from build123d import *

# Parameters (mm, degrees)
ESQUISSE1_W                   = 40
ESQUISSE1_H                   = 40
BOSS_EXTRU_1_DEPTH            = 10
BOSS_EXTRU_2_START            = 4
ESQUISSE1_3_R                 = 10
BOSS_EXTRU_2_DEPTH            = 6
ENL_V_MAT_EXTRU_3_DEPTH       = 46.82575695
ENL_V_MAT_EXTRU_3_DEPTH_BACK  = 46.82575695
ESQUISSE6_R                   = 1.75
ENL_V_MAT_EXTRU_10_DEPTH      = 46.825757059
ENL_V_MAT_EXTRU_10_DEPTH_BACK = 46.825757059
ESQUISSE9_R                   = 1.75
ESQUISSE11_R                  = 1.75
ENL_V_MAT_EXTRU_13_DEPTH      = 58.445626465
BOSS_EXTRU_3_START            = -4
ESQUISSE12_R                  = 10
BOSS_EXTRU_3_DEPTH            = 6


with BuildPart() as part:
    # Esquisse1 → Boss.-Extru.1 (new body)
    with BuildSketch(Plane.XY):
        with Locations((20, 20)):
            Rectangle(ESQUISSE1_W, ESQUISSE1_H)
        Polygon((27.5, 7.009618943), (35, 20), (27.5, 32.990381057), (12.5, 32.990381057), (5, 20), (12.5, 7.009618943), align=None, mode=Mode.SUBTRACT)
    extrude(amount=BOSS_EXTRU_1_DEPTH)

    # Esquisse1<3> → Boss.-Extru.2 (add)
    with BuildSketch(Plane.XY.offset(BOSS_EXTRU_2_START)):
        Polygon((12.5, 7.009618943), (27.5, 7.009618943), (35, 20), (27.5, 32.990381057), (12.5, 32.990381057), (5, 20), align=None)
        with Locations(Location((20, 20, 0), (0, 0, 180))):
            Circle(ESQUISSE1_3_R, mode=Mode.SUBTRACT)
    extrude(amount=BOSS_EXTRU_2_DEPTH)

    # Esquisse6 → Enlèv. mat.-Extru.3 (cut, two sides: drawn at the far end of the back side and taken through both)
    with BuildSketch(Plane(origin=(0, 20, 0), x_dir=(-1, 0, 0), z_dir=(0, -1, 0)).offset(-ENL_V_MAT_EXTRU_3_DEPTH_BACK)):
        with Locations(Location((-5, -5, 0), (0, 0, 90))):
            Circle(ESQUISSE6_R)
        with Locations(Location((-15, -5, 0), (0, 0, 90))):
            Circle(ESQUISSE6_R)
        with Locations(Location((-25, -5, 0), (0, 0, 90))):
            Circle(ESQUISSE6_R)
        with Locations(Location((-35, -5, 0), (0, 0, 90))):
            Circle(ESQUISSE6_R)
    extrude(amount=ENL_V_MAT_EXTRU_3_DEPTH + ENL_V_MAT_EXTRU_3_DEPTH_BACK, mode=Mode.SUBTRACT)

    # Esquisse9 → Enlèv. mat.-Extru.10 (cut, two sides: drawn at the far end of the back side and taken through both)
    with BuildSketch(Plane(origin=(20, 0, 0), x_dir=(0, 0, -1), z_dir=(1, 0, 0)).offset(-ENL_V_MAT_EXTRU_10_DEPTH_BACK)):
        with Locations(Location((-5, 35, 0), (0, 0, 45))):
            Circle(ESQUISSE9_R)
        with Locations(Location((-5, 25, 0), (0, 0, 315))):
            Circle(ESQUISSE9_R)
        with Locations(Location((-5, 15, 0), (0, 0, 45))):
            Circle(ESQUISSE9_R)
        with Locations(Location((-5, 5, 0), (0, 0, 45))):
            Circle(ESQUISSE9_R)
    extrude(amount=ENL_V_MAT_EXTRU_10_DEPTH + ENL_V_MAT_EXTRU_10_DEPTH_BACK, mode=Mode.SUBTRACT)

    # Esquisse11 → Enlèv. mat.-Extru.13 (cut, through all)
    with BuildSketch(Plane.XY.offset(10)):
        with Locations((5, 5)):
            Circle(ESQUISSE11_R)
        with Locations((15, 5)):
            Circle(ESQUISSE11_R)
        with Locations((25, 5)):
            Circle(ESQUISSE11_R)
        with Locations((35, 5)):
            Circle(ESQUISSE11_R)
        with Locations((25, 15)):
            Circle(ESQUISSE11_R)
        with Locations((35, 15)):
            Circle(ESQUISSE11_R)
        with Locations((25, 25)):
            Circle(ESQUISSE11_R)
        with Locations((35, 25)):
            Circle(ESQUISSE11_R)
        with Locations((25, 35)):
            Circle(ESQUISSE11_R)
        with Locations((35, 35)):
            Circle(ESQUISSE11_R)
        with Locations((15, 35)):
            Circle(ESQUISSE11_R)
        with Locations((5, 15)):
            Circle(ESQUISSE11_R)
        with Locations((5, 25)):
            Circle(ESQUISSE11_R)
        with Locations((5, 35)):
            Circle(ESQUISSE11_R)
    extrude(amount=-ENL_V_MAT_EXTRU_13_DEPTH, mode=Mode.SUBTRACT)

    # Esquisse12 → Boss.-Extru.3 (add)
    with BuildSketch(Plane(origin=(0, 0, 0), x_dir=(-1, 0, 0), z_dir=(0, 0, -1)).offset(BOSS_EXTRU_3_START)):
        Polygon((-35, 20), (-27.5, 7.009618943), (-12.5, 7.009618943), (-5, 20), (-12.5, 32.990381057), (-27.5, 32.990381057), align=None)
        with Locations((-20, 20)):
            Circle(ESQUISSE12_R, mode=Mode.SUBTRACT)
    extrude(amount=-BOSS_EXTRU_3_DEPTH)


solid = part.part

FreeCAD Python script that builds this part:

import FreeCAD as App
import Part
import Sketcher
Q = App.Units.Quantity


def add_polygon(sketch, points):
    """Adds a closed chain of lines whose ends are joined by coincident constraints."""
    first, n = sketch.GeometryCount, len(points)
    for a, b in zip(points, points[1:] + points[:1]):
        sketch.addGeometry(Part.LineSegment(App.Vector(*a, 0), App.Vector(*b, 0)), False)
    for i in range(n):
        sketch.addConstraint(Sketcher.Constraint("Coincident", first + i, 2, first + (i + 1) % n, 1))

doc = App.newDocument("Part")
body = doc.addObject("PartDesign::Body", "Body")

# Sketch on XY plane
sketch1 = body.newObject("Sketcher::SketchObject", "Sketch")
sketch1.AttachmentSupport = (doc.getObject("XY_Plane"), [""])
sketch1.MapMode = "FlatFace"
add_polygon(sketch1, [(0, 40), (0, 0), (40, 0), (40, 40)])  # lines 0-3
add_polygon(sketch1, [(35, 20), (28, 7), (12, 7), (5, 20), (12, 33), (28, 33)])  # lines 4-9
sketch1.addConstraint([
    Sketcher.Constraint("Vertical", 0),
    Sketcher.Constraint("Horizontal", 1),
    Sketcher.Constraint("Vertical", 2),
    Sketcher.Constraint("Horizontal", 3),
    Sketcher.Constraint("Horizontal", 5),
    Sketcher.Constraint("Horizontal", 8),
    Sketcher.Constraint("Coincident", 0, 2, -1, 1),
    Sketcher.Constraint("Parallel", 4, 7),
    Sketcher.Constraint("Parallel", 6, 9),
    Sketcher.Constraint("Horizontal", 6, 2, 9, 2),
    Sketcher.Constraint("Vertical", 5, 2, 7, 2),
    Sketcher.Constraint("Vertical", 4, 2, 8, 2),
    Sketcher.Constraint("Equal", 3, 0),
    Sketcher.Constraint("DistanceX", 1, 1, 1, 2, 40.0),
    Sketcher.Constraint("DistanceX", 5, 2, 5, 1, 15.0),
    Sketcher.Constraint("Angle", 4, Q("-120 deg")),
    Sketcher.Constraint("Distance", 4, 15.0),
    Sketcher.Constraint("DistanceX", -1, 1, 6, 2, 5.0),
    Sketcher.Constraint("DistanceY", -1, 1, 6, 2, 20.0),
])
pad1 = body.newObject("PartDesign::Pad", "Pad")
pad1.Profile = sketch1
pad1.Length = 10

# Sketch on XY plane
sketch2 = body.newObject("Sketcher::SketchObject", "Sketch001")
sketch2.AttachmentSupport = (doc.getObject("XY_Plane"), [""])
sketch2.MapMode = "FlatFace"
sketch2.AttachmentOffset = App.Placement(App.Vector(0, 0, 4), App.Rotation())
add_polygon(sketch2, [(12, 7), (28, 7), (35, 20), (28, 33), (12, 33), (5, 20)])  # lines 0-5
sketch2.addGeometry(Part.Circle(App.Vector(20, 20, 0), App.Vector(0, 0, 1), 10), False)  # 6
sketch2.addConstraint([
    Sketcher.Constraint("Horizontal", 0),
    Sketcher.Constraint("Horizontal", 3),
    Sketcher.Constraint("Parallel", 1, 4),
    Sketcher.Constraint("Parallel", 2, 5),
    Sketcher.Constraint("Horizontal", 6, 3, 1, 2),
    Sketcher.Constraint("Horizontal", 1, 2, 4, 2),
    Sketcher.Constraint("Vertical", 0, 2, 2, 2),
    Sketcher.Constraint("Vertical", 3, 2, 5, 2),
    Sketcher.Constraint("Diameter", 6, 20.0),
    Sketcher.Constraint("DistanceX", 0, 1, 0, 2, 15.0),
    Sketcher.Constraint("Angle", 1, Q("60 deg")),
    Sketcher.Constraint("Distance", 1, 15.0),
    Sketcher.Constraint("DistanceX", -1, 1, 6, 3, 20.0),
    Sketcher.Constraint("DistanceY", -1, 1, 6, 3, 20.0),
    Sketcher.Constraint("DistanceX", -1, 1, 1, 2, 35.0),
])
pad2 = body.newObject("PartDesign::Pad", "Pad001")
pad2.Profile = sketch2
pad2.Length = 6

# Sketch on XZ plane
sketch3 = body.newObject("Sketcher::SketchObject", "Sketch002")
sketch3.AttachmentSupport = (doc.getObject("XZ_Plane"), [""])
sketch3.MapMode = "FlatFace"
sketch3.AttachmentOffset = App.Placement(App.Vector(0, 0, -20), App.Rotation())
sketch3.addGeometry([
    Part.Circle(App.Vector(5, 5, 0), App.Vector(0, 0, 1), 1.8),
    Part.Circle(App.Vector(15, 5, 0), App.Vector(0, 0, 1), 1.8),
    Part.Circle(App.Vector(25, 5, 0), App.Vector(0, 0, 1), 1.8),
    Part.Circle(App.Vector(35, 5, 0), App.Vector(0, 0, 1), 1.8),
], False)
sketch3.addConstraint([
    Sketcher.Constraint("Equal", 0, 1),
    Sketcher.Constraint("Equal", 1, 2),
    Sketcher.Constraint("Equal", 2, 3),
    Sketcher.Constraint("Horizontal", 0, 3, 1, 3),
    Sketcher.Constraint("Horizontal", 1, 3, 2, 3),
    Sketcher.Constraint("Horizontal", 2, 3, 3, 3),
    Sketcher.Constraint("Diameter", 0, 3.5),
    Sketcher.Constraint("DistanceX", -1, 1, 0, 3, 5.0),
    Sketcher.Constraint("DistanceY", -1, 1, 0, 3, 5.0),
    Sketcher.Constraint("DistanceX", -1, 1, 1, 3, 15.0),
    Sketcher.Constraint("DistanceX", -1, 1, 2, 3, 25.0),
    Sketcher.Constraint("DistanceX", -1, 1, 3, 3, 35.0),
])
pocket1 = body.newObject("PartDesign::Pocket", "Pocket")
pocket1.Profile = sketch3
pocket1.Type = "ThroughAll"
pocket1.Midplane = True

# Sketch on YZ plane
sketch4 = body.newObject("Sketcher::SketchObject", "Sketch003")
sketch4.AttachmentSupport = (doc.getObject("YZ_Plane"), [""])
sketch4.MapMode = "FlatFace"
sketch4.AttachmentOffset = App.Placement(App.Vector(0, 0, 20), App.Rotation())
sketch4.addGeometry([
    Part.Circle(App.Vector(35, 5, 0), App.Vector(0, 0, 1), 1.8),
    Part.Circle(App.Vector(25, 5, 0), App.Vector(0, 0, 1), 1.8),
    Part.Circle(App.Vector(15, 5, 0), App.Vector(0, 0, 1), 1.8),
    Part.Circle(App.Vector(5, 5, 0), App.Vector(0, 0, 1), 1.8),
], False)
sketch4.addConstraint([
    Sketcher.Constraint("Equal", 0, 1),
    Sketcher.Constraint("Equal", 1, 2),
    Sketcher.Constraint("Equal", 2, 3),
    Sketcher.Constraint("Horizontal", 0, 3, 1, 3),
    Sketcher.Constraint("Horizontal", 1, 3, 2, 3),
    Sketcher.Constraint("Horizontal", 2, 3, 3, 3),
    Sketcher.Constraint("Diameter", 0, 3.5),
    Sketcher.Constraint("DistanceX", -1, 1, 0, 3, 35.0),
    Sketcher.Constraint("DistanceY", -1, 1, 0, 3, 5.0),
    Sketcher.Constraint("DistanceX", -1, 1, 1, 3, 25.0),
    Sketcher.Constraint("DistanceX", -1, 1, 2, 3, 15.0),
    Sketcher.Constraint("DistanceX", -1, 1, 3, 3, 5.0),
])
pocket2 = body.newObject("PartDesign::Pocket", "Pocket001")
pocket2.Profile = sketch4
pocket2.Type = "ThroughAll"
pocket2.Midplane = True

# Sketch on XY plane
sketch5 = body.newObject("Sketcher::SketchObject", "Sketch004")
sketch5.AttachmentSupport = (doc.getObject("XY_Plane"), [""])
sketch5.MapMode = "FlatFace"
sketch5.AttachmentOffset = App.Placement(App.Vector(0, 0, 10), App.Rotation())
sketch5.addGeometry([
    Part.Circle(App.Vector(5, 5, 0), App.Vector(0, 0, 1), 1.8),  # 0
    Part.Circle(App.Vector(15, 5, 0), App.Vector(0, 0, 1), 1.8),  # 1
    Part.Circle(App.Vector(25, 5, 0), App.Vector(0, 0, 1), 1.8),  # 2
    Part.Circle(App.Vector(35, 5, 0), App.Vector(0, 0, 1), 1.8),  # 3
    Part.Circle(App.Vector(25, 15, 0), App.Vector(0, 0, 1), 1.8),  # 4
    Part.Circle(App.Vector(35, 15, 0), App.Vector(0, 0, 1), 1.8),  # 5
    Part.Circle(App.Vector(25, 25, 0), App.Vector(0, 0, 1), 1.8),  # 6
    Part.Circle(App.Vector(35, 25, 0), App.Vector(0, 0, 1), 1.8),  # 7
    Part.Circle(App.Vector(25, 35, 0), App.Vector(0, 0, 1), 1.8),  # 8
    Part.Circle(App.Vector(35, 35, 0), App.Vector(0, 0, 1), 1.8),  # 9
    Part.Circle(App.Vector(15, 35, 0), App.Vector(0, 0, 1), 1.8),  # 10
    Part.Circle(App.Vector(5, 15, 0), App.Vector(0, 0, 1), 1.8),  # 11
    Part.Circle(App.Vector(5, 25, 0), App.Vector(0, 0, 1), 1.8),  # 12
    Part.Circle(App.Vector(5, 35, 0), App.Vector(0, 0, 1), 1.8),  # 13
], False)
sketch5.addConstraint([
    Sketcher.Constraint("Equal", 0, 1),
    Sketcher.Constraint("Equal", 1, 2),
    Sketcher.Constraint("Equal", 2, 3),
    Sketcher.Constraint("Equal", 3, 4),
    Sketcher.Constraint("Equal", 4, 5),
    Sketcher.Constraint("Equal", 5, 6),
    Sketcher.Constraint("Equal", 6, 7),
    Sketcher.Constraint("Equal", 7, 8),
    Sketcher.Constraint("Equal", 8, 9),
    Sketcher.Constraint("Equal", 9, 10),
    Sketcher.Constraint("Equal", 10, 11),
    Sketcher.Constraint("Equal", 11, 12),
    Sketcher.Constraint("Equal", 12, 13),
    Sketcher.Constraint("Horizontal", 0, 3, 1, 3),
    Sketcher.Constraint("Horizontal", 1, 3, 2, 3),
    Sketcher.Constraint("Horizontal", 2, 3, 3, 3),
    Sketcher.Constraint("Horizontal", 4, 3, 5, 3),
    Sketcher.Constraint("Horizontal", 6, 3, 7, 3),
    Sketcher.Constraint("Horizontal", 8, 3, 9, 3),
    Sketcher.Constraint("Horizontal", 9, 3, 10, 3),
    Sketcher.Constraint("Horizontal", 5, 3, 11, 3),
    Sketcher.Constraint("Horizontal", 7, 3, 12, 3),
    Sketcher.Constraint("Horizontal", 10, 3, 13, 3),
    Sketcher.Constraint("Vertical", 2, 3, 4, 3),
    Sketcher.Constraint("Vertical", 3, 3, 5, 3),
    Sketcher.Constraint("Vertical", 4, 3, 6, 3),
    Sketcher.Constraint("Vertical", 5, 3, 7, 3),
    Sketcher.Constraint("Vertical", 6, 3, 8, 3),
    Sketcher.Constraint("Vertical", 7, 3, 9, 3),
    Sketcher.Constraint("Vertical", 1, 3, 10, 3),
    Sketcher.Constraint("Vertical", 0, 3, 11, 3),
    Sketcher.Constraint("Vertical", 11, 3, 12, 3),
    Sketcher.Constraint("Vertical", 12, 3, 13, 3),
    Sketcher.Constraint("Diameter", 0, 3.5),
    Sketcher.Constraint("DistanceX", -1, 1, 0, 3, 5.0),
    Sketcher.Constraint("DistanceY", -1, 1, 0, 3, 5.0),
    Sketcher.Constraint("DistanceX", -1, 1, 1, 3, 15.0),
    Sketcher.Constraint("DistanceX", -1, 1, 2, 3, 25.0),
    Sketcher.Constraint("DistanceX", -1, 1, 3, 3, 35.0),
    Sketcher.Constraint("DistanceY", -1, 1, 4, 3, 15.0),
    Sketcher.Constraint("DistanceY", -1, 1, 6, 3, 25.0),
    Sketcher.Constraint("DistanceY", -1, 1, 8, 3, 35.0),
])
pocket3 = body.newObject("PartDesign::Pocket", "Pocket002")
pocket3.Profile = sketch5
pocket3.Type = "ThroughAll"

# Sketch on XY plane
sketch6 = body.newObject("Sketcher::SketchObject", "Sketch005")
sketch6.AttachmentSupport = (doc.getObject("XY_Plane"), [""])
sketch6.MapMode = "FlatFace"
sketch6.AttachmentOffset = App.Placement(App.Vector(0, 0, 4), App.Rotation())
add_polygon(sketch6, [(35, 20), (28, 7), (12, 7), (5, 20), (12, 33), (28, 33)])  # lines 0-5
sketch6.addGeometry(Part.Circle(App.Vector(20, 20, 0), App.Vector(0, 0, 1), 10), False)  # 6
sketch6.addConstraint([
    Sketcher.Constraint("Horizontal", 1),
    Sketcher.Constraint("Horizontal", 4),
    Sketcher.Constraint("Parallel", 0, 3),
    Sketcher.Constraint("Parallel", 2, 5),
    Sketcher.Constraint("Horizontal", 6, 3, 2, 2),
    Sketcher.Constraint("Horizontal", 2, 2, 5, 2),
    Sketcher.Constraint("Vertical", 1, 2, 3, 2),
    Sketcher.Constraint("Vertical", 0, 2, 4, 2),
    Sketcher.Constraint("Diameter", 6, 20.0),
    Sketcher.Constraint("DistanceX", 1, 2, 1, 1, 15.0),
    Sketcher.Constraint("Angle", 0, Q("-120 deg")),
    Sketcher.Constraint("Distance", 0, 15.0),
    Sketcher.Constraint("DistanceX", -1, 1, 6, 3, 20.0),
    Sketcher.Constraint("DistanceY", -1, 1, 6, 3, 20.0),
    Sketcher.Constraint("DistanceX", -1, 1, 2, 2, 5.0),
])
pad3 = body.newObject("PartDesign::Pad", "Pad002")
pad3.Profile = sketch6
pad3.Length = 6

doc.recompute()
